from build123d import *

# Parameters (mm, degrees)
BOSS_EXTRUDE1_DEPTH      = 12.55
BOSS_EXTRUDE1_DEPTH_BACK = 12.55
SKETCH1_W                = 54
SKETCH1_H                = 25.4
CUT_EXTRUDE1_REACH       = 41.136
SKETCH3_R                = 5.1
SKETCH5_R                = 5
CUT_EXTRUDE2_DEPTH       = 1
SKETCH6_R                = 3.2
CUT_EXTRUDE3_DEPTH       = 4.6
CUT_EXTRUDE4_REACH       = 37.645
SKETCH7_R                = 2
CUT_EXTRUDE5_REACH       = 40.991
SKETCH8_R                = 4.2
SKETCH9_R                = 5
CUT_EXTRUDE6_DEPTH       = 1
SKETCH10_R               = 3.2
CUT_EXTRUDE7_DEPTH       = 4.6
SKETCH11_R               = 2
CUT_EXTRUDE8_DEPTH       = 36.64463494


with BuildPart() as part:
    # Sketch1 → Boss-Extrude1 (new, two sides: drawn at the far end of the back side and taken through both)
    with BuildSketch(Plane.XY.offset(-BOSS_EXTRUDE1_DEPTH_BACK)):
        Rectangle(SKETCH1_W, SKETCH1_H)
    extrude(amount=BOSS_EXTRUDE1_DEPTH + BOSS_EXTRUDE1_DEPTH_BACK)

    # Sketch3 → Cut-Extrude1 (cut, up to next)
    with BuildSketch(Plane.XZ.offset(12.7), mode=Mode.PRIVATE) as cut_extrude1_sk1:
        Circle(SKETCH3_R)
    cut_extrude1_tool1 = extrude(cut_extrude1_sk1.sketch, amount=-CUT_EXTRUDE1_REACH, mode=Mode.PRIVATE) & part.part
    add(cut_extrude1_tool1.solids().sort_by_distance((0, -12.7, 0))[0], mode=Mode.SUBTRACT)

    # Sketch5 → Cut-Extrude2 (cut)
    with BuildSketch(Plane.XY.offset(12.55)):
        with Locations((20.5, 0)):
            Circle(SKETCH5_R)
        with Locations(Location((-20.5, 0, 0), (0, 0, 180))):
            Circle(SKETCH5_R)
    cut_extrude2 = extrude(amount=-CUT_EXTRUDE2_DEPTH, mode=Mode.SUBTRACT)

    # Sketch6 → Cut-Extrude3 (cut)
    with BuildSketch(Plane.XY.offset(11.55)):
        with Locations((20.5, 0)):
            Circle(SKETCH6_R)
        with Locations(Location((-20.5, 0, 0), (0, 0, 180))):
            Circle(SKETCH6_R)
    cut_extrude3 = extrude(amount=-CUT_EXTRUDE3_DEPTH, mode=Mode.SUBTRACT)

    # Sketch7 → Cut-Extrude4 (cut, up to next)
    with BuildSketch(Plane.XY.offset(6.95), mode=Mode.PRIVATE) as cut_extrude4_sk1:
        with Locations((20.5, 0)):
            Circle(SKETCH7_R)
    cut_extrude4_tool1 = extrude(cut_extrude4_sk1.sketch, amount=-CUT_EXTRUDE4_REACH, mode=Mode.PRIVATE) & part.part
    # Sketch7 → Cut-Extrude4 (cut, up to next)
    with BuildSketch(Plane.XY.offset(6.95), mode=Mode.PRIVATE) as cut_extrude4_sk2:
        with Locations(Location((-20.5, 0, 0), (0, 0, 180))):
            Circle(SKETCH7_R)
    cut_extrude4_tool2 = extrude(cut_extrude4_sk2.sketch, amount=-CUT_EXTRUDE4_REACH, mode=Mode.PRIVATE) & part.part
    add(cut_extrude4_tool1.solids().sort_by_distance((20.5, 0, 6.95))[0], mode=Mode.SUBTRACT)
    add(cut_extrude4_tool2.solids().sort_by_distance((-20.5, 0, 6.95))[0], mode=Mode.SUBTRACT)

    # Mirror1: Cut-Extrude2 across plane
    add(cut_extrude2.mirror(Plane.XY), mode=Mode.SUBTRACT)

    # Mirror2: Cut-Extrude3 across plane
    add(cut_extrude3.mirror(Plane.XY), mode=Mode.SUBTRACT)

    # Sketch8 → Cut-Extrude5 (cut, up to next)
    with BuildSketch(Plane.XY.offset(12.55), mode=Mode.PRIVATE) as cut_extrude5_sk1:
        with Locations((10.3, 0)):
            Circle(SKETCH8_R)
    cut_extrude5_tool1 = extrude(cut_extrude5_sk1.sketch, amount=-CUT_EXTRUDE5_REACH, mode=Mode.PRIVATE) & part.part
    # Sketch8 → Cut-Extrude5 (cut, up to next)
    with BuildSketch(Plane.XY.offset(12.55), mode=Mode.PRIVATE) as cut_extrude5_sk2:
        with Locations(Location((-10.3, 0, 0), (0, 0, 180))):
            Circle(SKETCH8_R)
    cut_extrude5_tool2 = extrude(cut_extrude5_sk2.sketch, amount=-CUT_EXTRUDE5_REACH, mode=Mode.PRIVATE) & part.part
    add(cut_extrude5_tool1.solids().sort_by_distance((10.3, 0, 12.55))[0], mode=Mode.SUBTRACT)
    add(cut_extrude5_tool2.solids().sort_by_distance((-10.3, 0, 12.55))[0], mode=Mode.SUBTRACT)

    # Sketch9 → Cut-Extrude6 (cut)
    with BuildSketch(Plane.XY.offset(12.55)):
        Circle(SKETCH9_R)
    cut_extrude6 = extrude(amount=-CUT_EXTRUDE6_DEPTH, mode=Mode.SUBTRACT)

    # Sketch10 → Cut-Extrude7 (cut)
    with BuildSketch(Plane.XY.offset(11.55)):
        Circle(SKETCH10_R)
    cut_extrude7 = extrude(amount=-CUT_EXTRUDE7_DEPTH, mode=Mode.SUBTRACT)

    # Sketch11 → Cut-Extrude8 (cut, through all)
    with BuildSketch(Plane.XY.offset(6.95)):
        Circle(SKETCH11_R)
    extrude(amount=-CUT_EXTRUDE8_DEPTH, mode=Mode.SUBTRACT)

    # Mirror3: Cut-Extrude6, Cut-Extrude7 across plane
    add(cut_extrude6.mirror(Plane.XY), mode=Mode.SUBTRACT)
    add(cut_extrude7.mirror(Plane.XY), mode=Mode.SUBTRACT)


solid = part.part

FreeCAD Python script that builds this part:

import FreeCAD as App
import Part
import Sketcher

V = App.Vector

doc = App.newDocument("Part")
body = doc.addObject("PartDesign::Body", "Body")

# Sketch on XY plane
sketch1 = doc.addObject("Sketcher::SketchObject", "Sketch")
body.addObject(sketch1)
sketch1.AttachmentSupport = (doc.XY_Plane, [""])
sketch1.MapMode = "FlatFace"
sketch1.addGeometry([
    Part.LineSegment(V(-27, 13, 0), V(-27, -13, 0)),
    Part.LineSegment(V(-27, -13, 0), V(27, -13, 0)),
    Part.LineSegment(V(27, -13, 0), V(27, 13, 0)),
    Part.LineSegment(V(27, 13, 0), V(-27, 13, 0)),
], False)
sketch1.addConstraint([
    Sketcher.Constraint("Coincident", 0, 2, 1, 1),
    Sketcher.Constraint("Coincident", 1, 2, 2, 1),
    Sketcher.Constraint("Coincident", 2, 2, 3, 1),
    Sketcher.Constraint("Coincident", 3, 2, 0, 1),
    Sketcher.Constraint("Vertical", 0),
    Sketcher.Constraint("Horizontal", 1),
    Sketcher.Constraint("Vertical", 2),
    Sketcher.Constraint("Horizontal", 3),
    Sketcher.Constraint("Symmetric", 0, 2, 2, 2, -1, 1),
    Sketcher.Constraint("DistanceX", 1, 1, 1, 2, 54.0),
    Sketcher.Constraint("DistanceY", 0, 2, 0, 1, 25.4),
])
pad1 = doc.addObject("PartDesign::Pad", "Pad")
body.addObject(pad1)
pad1.Profile = sketch1
pad1.Type = "TwoLengths"
pad1.Length = 12.55
pad1.Length2 = 12.55

# Sketch on XZ plane
sketch2 = doc.addObject("Sketcher::SketchObject", "Sketch001")
body.addObject(sketch2)
sketch2.AttachmentSupport = (doc.XZ_Plane, [""])
sketch2.MapMode = "FlatFace"
sketch2.AttachmentOffset = App.Placement(V(0, 0, 12.7), App.Rotation())
sketch2.addGeometry(Part.Circle(V(0, 0, 0), V(0, 0, 1), 5), False)
sketch2.addConstraint([
    Sketcher.Constraint("Coincident", 0, 3, -1, 1),
    Sketcher.Constraint("Diameter", 0, 10.2),
])
pocket1 = doc.addObject("PartDesign::Pocket", "Pocket")
body.addObject(pocket1)
pocket1.Profile = sketch2
pocket1.Type = "UpToFirst"

# Sketch on XY plane
sketch3 = doc.addObject("Sketcher::SketchObject", "Sketch002")
body.addObject(sketch3)
sketch3.AttachmentSupport = (doc.XY_Plane, [""])
sketch3.MapMode = "FlatFace"
sketch3.AttachmentOffset = App.Placement(V(0, 0, 12.55), App.Rotation())
sketch3.addGeometry([
    Part.Circle(V(20, 0, 0), V(0, 0, 1), 5),
    Part.Circle(V(-20, 0, 0), V(0, 0, 1), 5),
], False)
sketch3.addConstraint([
    Sketcher.Constraint("Equal", 0, 1),
    Sketcher.Constraint("Symmetric", 0, 3, 1, 3, -1, 1),
    Sketcher.Constraint("PointOnObject", 0, 3, -1),
    Sketcher.Constraint("Diameter", 0, 10.0),
    Sketcher.Constraint("DistanceX", 1, 3, 0, 3, 41.0),
])
pocket2 = doc.addObject("PartDesign::Pocket", "Pocket001")
body.addObject(pocket2)
pocket2.Profile = sketch3
pocket2.Length = 1

# Sketch on XY plane
sketch4 = doc.addObject("Sketcher::SketchObject", "Sketch003")
body.addObject(sketch4)
sketch4.AttachmentSupport = (doc.XY_Plane, [""])
sketch4.MapMode = "FlatFace"
sketch4.AttachmentOffset = App.Placement(V(0, 0, 11.55), App.Rotation())
sketch4.addGeometry([
    Part.Circle(V(20.5, 0, 0), V(0, 0, 1), 3.2),
    Part.Circle(V(-20.5, 0, 0), V(0, 0, 1), 3.2),
], False)
sketch4.addConstraint([
    Sketcher.Constraint("Equal", 0, 1),
    Sketcher.Constraint("Symmetric", 0, 3, 1, 3, -1, 1),
    Sketcher.Constraint("PointOnObject", 0, 3, -1),
    Sketcher.Constraint("Diameter", 0, 6.4),
    Sketcher.Constraint("DistanceX", 1, 3, 0, 3, 41.0),
])
pocket3 = doc.addObject("PartDesign::Pocket", "Pocket002")
body.addObject(pocket3)
pocket3.Profile = sketch4
pocket3.Length = 4.6

# Sketch on XY plane
sketch5 = doc.addObject("Sketcher::SketchObject", "Sketch004")
body.addObject(sketch5)
sketch5.AttachmentSupport = (doc.XY_Plane, [""])
sketch5.MapMode = "FlatFace"
sketch5.AttachmentOffset = App.Placement(V(0, 0, 6.95), App.Rotation())
sketch5.addGeometry(Part.Circle(V(20.5, 0, 0), V(0, 0, 1), 2), False)
sketch5.addConstraint([
    Sketcher.Constraint("PointOnObject", 0, 3, -1),
    Sketcher.Constraint("Diameter", 0, 4.0),
    Sketcher.Constraint("DistanceX", -1, 1, 0, 3, 20.5),
])
pocket4 = doc.addObject("PartDesign::Pocket", "Pocket003")
body.addObject(pocket4)
pocket4.Profile = sketch5
pocket4.Type = "UpToFirst"

# Sketch on XY plane
sketch6 = doc.addObject("Sketcher::SketchObject", "Sketch005")
body.addObject(sketch6)
sketch6.AttachmentSupport = (doc.XY_Plane, [""])
sketch6.MapMode = "FlatFace"
sketch6.AttachmentOffset = App.Placement(V(0, 0, 6.95), App.Rotation())
sketch6.addGeometry(Part.Circle(V(-20.5, 0, 0), V(0, 0, 1), 2), False)
sketch6.addConstraint([
    Sketcher.Constraint("PointOnObject", 0, 3, -1),
    Sketcher.Constraint("Diameter", 0, 4.0),
    Sketcher.Constraint("DistanceX", 0, 3, -1, 1, 20.5),
])
pocket5 = doc.addObject("PartDesign::Pocket", "Pocket004")
body.addObject(pocket5)
pocket5.Profile = sketch6
pocket5.Type = "UpToFirst"
doc.recompute()

mirrored = doc.addObject("PartDesign::Mirrored", "Mirrored")
body.addObject(mirrored)
mirrored.Originals = [pocket2]
mirrored.MirrorPlane = (doc.XY_Plane, [""])
body.Tip = mirrored
doc.recompute()

mirrored2 = doc.addObject("PartDesign::Mirrored", "Mirrored001")
body.addObject(mirrored2)
mirrored2.Originals = [pocket3]
mirrored2.MirrorPlane = (doc.XY_Plane, [""])
body.Tip = mirrored2

# Sketch on XY plane
sketch7 = doc.addObject("Sketcher::SketchObject", "Sketch006")
body.addObject(sketch7)
sketch7.AttachmentSupport = (doc.XY_Plane, [""])
sketch7.MapMode = "FlatFace"
sketch7.AttachmentOffset = App.Placement(V(0, 0, 12.55), App.Rotation())
sketch7.addGeometry(Part.Circle(V(10.3, 0, 0), V(0, 0, 1), 4.2), False)
sketch7.addConstraint([
    Sketcher.Constraint("PointOnObject", 0, 3, -1),
    Sketcher.Constraint("Diameter", 0, 8.4),
    Sketcher.Constraint("DistanceX", -1, 1, 0, 3, 10.3),
])
pocket6 = doc.addObject("PartDesign::Pocket", "Pocket005")
body.addObject(pocket6)
pocket6.Profile = sketch7
pocket6.Type = "UpToFirst"

# Sketch on XY plane
sketch8 = doc.addObject("Sketcher::SketchObject", "Sketch007")
body.addObject(sketch8)
sketch8.AttachmentSupport = (doc.XY_Plane, [""])
sketch8.MapMode = "FlatFace"
sketch8.AttachmentOffset = App.Placement(V(0, 0, 12.55), App.Rotation())
sketch8.addGeometry(Part.Circle(V(-10.3, 0, 0), V(0, 0, 1), 4.2), False)
sketch8.addConstraint([
    Sketcher.Constraint("PointOnObject", 0, 3, -1),
    Sketcher.Constraint("Diameter", 0, 8.4),
    Sketcher.Constraint("DistanceX", 0, 3, -1, 1, 10.3),
])
pocket7 = doc.addObject("PartDesign::Pocket", "Pocket006")
body.addObject(pocket7)
pocket7.Profile = sketch8
pocket7.Type = "UpToFirst"

# Sketch on XY plane
sketch9 = doc.addObject("Sketcher::SketchObject", "Sketch008")
body.addObject(sketch9)
sketch9.AttachmentSupport = (doc.XY_Plane, [""])
sketch9.MapMode = "FlatFace"
sketch9.AttachmentOffset = App.Placement(V(0, 0, 12.55), App.Rotation())
sketch9.addGeometry(Part.Circle(V(0, 0, 0), V(0, 0, 1), 5), False)
sketch9.addConstraint([
    Sketcher.Constraint("Coincident", 0, 3, -1, 1),
    Sketcher.Constraint("Diameter", 0, 10.0),
])
pocket8 = doc.addObject("PartDesign::Pocket", "Pocket007")
body.addObject(pocket8)
pocket8.Profile = sketch9
pocket8.Length = 1

# Sketch on XY plane
sketch10 = doc.addObject("Sketcher::SketchObject", "Sketch009")
body.addObject(sketch10)
sketch10.AttachmentSupport = (doc.XY_Plane, [""])
sketch10.MapMode = "FlatFace"
sketch10.AttachmentOffset = App.Placement(V(0, 0, 11.55), App.Rotation())
sketch10.addGeometry(Part.Circle(V(0, 0, 0), V(0, 0, 1), 3.2), False)
sketch10.addConstraint([
    Sketcher.Constraint("Coincident", 0, 3, -1, 1),
    Sketcher.Constraint("Diameter", 0, 6.4),
])
pocket9 = doc.addObject("PartDesign::Pocket", "Pocket008")
body.addObject(pocket9)
pocket9.Profile = sketch10
pocket9.Length = 4.6

# Sketch on XY plane
sketch11 = doc.addObject("Sketcher::SketchObject", "Sketch010")
body.addObject(sketch11)
sketch11.AttachmentSupport = (doc.XY_Plane, [""])
sketch11.MapMode = "FlatFace"
sketch11.AttachmentOffset = App.Placement(V(0, 0, 6.95), App.Rotation())
sketch11.addGeometry(Part.Circle(V(0, 0, 0), V(0, 0, 1), 2), False)
sketch11.addConstraint([
    Sketcher.Constraint("Coincident", 0, 3, -1, 1),
    Sketcher.Constraint("Diameter", 0, 4.0),
])
pocket10 = doc.addObject("PartDesign::Pocket", "Pocket009")
body.addObject(pocket10)
pocket10.Profile = sketch11
pocket10.Type = "ThroughAll"
doc.recompute()

mirrored3 = doc.addObject("PartDesign::Mirrored", "Mirrored002")
body.addObject(mirrored3)
mirrored3.Originals = [pocket8, pocket9]
mirrored3.MirrorPlane = (doc.XY_Plane, [""])
body.Tip = mirrored3

doc.recompute()
